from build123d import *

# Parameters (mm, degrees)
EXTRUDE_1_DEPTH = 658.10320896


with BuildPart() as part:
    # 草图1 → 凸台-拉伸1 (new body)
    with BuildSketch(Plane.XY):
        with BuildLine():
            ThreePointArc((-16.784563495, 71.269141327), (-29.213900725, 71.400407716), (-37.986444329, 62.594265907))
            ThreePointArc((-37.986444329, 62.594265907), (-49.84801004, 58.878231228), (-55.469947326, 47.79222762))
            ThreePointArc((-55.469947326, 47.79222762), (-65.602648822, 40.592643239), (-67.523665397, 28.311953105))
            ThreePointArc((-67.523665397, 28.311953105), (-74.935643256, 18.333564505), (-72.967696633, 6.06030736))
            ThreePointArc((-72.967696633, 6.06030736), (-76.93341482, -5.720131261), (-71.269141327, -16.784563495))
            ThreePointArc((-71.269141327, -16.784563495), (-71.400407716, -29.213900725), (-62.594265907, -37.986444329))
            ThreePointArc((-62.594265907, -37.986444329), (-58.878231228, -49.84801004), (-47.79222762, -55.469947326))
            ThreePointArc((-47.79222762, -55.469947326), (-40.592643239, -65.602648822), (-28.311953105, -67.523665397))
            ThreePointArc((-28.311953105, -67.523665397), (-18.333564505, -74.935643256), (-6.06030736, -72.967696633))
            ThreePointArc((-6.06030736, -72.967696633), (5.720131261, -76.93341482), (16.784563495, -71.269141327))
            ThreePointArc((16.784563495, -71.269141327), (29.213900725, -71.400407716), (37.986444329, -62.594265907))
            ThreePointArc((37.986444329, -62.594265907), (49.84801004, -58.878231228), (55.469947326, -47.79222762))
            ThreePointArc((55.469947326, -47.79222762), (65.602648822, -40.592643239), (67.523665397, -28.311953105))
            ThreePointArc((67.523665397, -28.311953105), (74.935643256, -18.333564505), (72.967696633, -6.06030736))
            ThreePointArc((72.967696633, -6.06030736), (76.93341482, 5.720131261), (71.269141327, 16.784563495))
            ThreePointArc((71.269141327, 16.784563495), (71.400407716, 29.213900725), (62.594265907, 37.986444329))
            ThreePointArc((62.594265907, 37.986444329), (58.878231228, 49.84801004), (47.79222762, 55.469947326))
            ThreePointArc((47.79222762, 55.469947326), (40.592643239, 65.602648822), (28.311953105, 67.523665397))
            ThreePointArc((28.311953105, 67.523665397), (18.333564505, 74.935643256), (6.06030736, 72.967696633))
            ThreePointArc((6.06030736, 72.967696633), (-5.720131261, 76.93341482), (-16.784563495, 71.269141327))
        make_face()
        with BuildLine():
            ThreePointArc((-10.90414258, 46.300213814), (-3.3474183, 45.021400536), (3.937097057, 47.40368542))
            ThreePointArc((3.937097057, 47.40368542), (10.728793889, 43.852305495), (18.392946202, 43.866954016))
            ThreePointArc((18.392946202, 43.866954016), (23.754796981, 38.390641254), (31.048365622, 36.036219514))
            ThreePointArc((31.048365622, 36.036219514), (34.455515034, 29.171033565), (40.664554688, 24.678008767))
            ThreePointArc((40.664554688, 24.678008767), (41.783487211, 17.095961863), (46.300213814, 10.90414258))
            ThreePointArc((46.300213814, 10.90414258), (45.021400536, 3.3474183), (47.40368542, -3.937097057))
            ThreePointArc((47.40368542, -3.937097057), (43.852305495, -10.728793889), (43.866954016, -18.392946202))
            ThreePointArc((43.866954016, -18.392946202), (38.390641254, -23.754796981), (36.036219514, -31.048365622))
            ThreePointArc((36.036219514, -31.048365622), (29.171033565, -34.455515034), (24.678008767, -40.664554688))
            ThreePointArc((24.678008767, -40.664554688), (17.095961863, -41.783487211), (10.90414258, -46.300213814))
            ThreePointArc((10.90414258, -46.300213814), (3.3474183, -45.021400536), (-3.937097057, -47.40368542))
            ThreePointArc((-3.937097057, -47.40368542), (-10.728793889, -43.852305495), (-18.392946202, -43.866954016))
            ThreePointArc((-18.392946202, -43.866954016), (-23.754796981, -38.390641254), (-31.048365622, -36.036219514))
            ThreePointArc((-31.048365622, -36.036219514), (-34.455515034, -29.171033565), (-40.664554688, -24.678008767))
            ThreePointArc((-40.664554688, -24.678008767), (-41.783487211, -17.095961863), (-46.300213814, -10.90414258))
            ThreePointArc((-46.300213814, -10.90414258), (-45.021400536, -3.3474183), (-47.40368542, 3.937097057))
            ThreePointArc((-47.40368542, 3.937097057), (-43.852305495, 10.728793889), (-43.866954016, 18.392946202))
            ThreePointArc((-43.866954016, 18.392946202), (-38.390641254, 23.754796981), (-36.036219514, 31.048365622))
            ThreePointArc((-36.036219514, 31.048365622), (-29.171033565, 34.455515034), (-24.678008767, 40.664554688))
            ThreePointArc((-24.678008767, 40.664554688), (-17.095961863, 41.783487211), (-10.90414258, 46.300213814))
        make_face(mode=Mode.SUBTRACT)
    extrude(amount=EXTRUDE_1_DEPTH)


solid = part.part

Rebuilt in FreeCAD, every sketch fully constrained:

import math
import FreeCAD as App
import Part
import Sketcher
from FreeCAD import Vector
Q = App.Units.Quantity

doc = App.newDocument("Part")
body = doc.addObject("PartDesign::Body", "Body")

# Sketch on XY plane
sketch1 = doc.addObject("Sketcher::SketchObject", "Sketch")
body.addObject(sketch1)
sketch1.AttachmentSupport = (doc.XY_Plane, [""])
sketch1.MapMode = "FlatFace"
sketch1.addGeometry(Part.ArcOfCircle(Part.Circle(Vector(-23.154931, 56.591947, 0), Vector(0, 0, 1), 16.00005), math.radians(66.537627), math.radians(157.966804)), False)
sketch1.addGeometry(Part.ArcOfCircle(Part.Circle(Vector(-39.509522, 46.666873, 0), Vector(0, 0, 1), 16.00005), math.radians(84.537627), math.radians(175.966804)), False)
sketch1.addGeometry(Part.ArcOfCircle(Part.Circle(Vector(-51.996645, 32.17372, 0), Vector(0, 0, 1), 16.00005), math.radians(102.537627), math.radians(193.966804)), False)
sketch1.addGeometry(Part.ArcOfCircle(Part.Circle(Vector(-59.393974, 14.531179, 0), Vector(0, 0, 1), 16.00005), math.radians(120.537627), math.radians(211.966804)), False)
sketch1.addGeometry(Part.ArcOfCircle(Part.Circle(Vector(-60.977408, -4.533775, 0), Vector(0, 0, 1), 16.00005), math.radians(138.537627), math.radians(229.966804)), False)
sketch1.addGeometry(Part.ArcOfCircle(Part.Circle(Vector(-56.591947, -23.154931, 0), Vector(0, 0, 1), 16.00005), math.radians(156.537627), math.radians(247.966804)), False)
sketch1.addGeometry(Part.ArcOfCircle(Part.Circle(Vector(-46.666873, -39.509522, 0), Vector(0, 0, 1), 16.00005), math.radians(174.537627), math.radians(265.966804)), False)
sketch1.addGeometry(Part.ArcOfCircle(Part.Circle(Vector(-32.17372, -51.996645, 0), Vector(0, 0, 1), 16.00005), math.radians(-167.462373), math.radians(-76.033196)), False)
sketch1.addGeometry(Part.ArcOfCircle(Part.Circle(Vector(-14.531179, -59.393974, 0), Vector(0, 0, 1), 16.00005), math.radians(-149.462373), math.radians(-58.033196)), False)
sketch1.addGeometry(Part.ArcOfCircle(Part.Circle(Vector(4.533775, -60.977408, 0), Vector(0, 0, 1), 16.00005), math.radians(-131.462373), math.radians(-40.033196)), False)
sketch1.addGeometry(Part.ArcOfCircle(Part.Circle(Vector(23.154931, -56.591947, 0), Vector(0, 0, 1), 16.00005), math.radians(-113.462373), math.radians(-22.033196)), False)
sketch1.addGeometry(Part.ArcOfCircle(Part.Circle(Vector(39.509522, -46.666873, 0), Vector(0, 0, 1), 16.00005), math.radians(-95.462373), math.radians(-4.033196)), False)
sketch1.addGeometry(Part.ArcOfCircle(Part.Circle(Vector(51.996645, -32.17372, 0), Vector(0, 0, 1), 16.00005), math.radians(-77.462373), math.radians(13.966804)), False)
sketch1.addGeometry(Part.ArcOfCircle(Part.Circle(Vector(59.393974, -14.531179, 0), Vector(0, 0, 1), 16.00005), math.radians(-59.462373), math.radians(31.966804)), False)
sketch1.addGeometry(Part.ArcOfCircle(Part.Circle(Vector(60.977408, 4.533775, 0), Vector(0, 0, 1), 16.00005), math.radians(-41.462373), math.radians(49.966804)), False)
sketch1.addGeometry(Part.ArcOfCircle(Part.Circle(Vector(56.591947, 23.154931, 0), Vector(0, 0, 1), 16.00005), math.radians(-23.462373), math.radians(67.966804)), False)
sketch1.addGeometry(Part.ArcOfCircle(Part.Circle(Vector(46.666873, 39.509522, 0), Vector(0, 0, 1), 16.00005), math.radians(-5.462373), math.radians(85.966804)), False)
sketch1.addGeometry(Part.ArcOfCircle(Part.Circle(Vector(32.17372, 51.996645, 0), Vector(0, 0, 1), 16.00005), math.radians(12.537627), math.radians(103.966804)), False)
sketch1.addGeometry(Part.ArcOfCircle(Part.Circle(Vector(14.531179, 59.393974, 0), Vector(0, 0, 1), 16.00005), math.radians(30.537627), math.radians(121.966804)), False)
sketch1.addGeometry(Part.ArcOfCircle(Part.Circle(Vector(-4.533775, 60.977408, 0), Vector(0, 0, 1), 16.00005), math.radians(48.537627), math.radians(139.966804)), False)
sketch1.addGeometry(Part.ArcOfCircle(Part.Circle(Vector(-23.154931, 56.591947, 0), Vector(0, 0, 1), 16.00005), math.radians(-95.462373), math.radians(-40.033196)), False)
sketch1.addGeometry(Part.ArcOfCircle(Part.Circle(Vector(-4.533775, 60.977408, 0), Vector(0, 0, 1), 16.00005), math.radians(-113.462373), math.radians(-58.033196)), False)
sketch1.addGeometry(Part.ArcOfCircle(Part.Circle(Vector(14.531179, 59.393974, 0), Vector(0, 0, 1), 16.00005), math.radians(-131.462373), math.radians(-76.033196)), False)
sketch1.addGeometry(Part.ArcOfCircle(Part.Circle(Vector(32.17372, 51.996645, 0), Vector(0, 0, 1), 16.00005), math.radians(-149.462373), math.radians(-94.033196)), False)
sketch1.addGeometry(Part.ArcOfCircle(Part.Circle(Vector(46.666873, 39.509522, 0), Vector(0, 0, 1), 16.00005), math.radians(-167.462373), math.radians(-112.033196)), False)
sketch1.addGeometry(Part.ArcOfCircle(Part.Circle(Vector(56.591947, 23.154931, 0), Vector(0, 0, 1), 16.00005), math.radians(174.537627), math.radians(229.966804)), False)
sketch1.addGeometry(Part.ArcOfCircle(Part.Circle(Vector(60.977408, 4.533775, 0), Vector(0, 0, 1), 16.00005), math.radians(156.537627), math.radians(211.966804)), False)
sketch1.addGeometry(Part.ArcOfCircle(Part.Circle(Vector(59.393974, -14.531179, 0), Vector(0, 0, 1), 16.00005), math.radians(138.537627), math.radians(193.966804)), False)
sketch1.addGeometry(Part.ArcOfCircle(Part.Circle(Vector(51.996645, -32.17372, 0), Vector(0, 0, 1), 16.00005), math.radians(120.537627), math.radians(175.966804)), False)
sketch1.addGeometry(Part.ArcOfCircle(Part.Circle(Vector(39.509522, -46.666873, 0), Vector(0, 0, 1), 16.00005), math.radians(102.537627), math.radians(157.966804)), False)
sketch1.addGeometry(Part.ArcOfCircle(Part.Circle(Vector(23.154931, -56.591947, 0), Vector(0, 0, 1), 16.00005), math.radians(84.537627), math.radians(139.966804)), False)
sketch1.addGeometry(Part.ArcOfCircle(Part.Circle(Vector(4.533775, -60.977408, 0), Vector(0, 0, 1), 16.00005), math.radians(66.537627), math.radians(121.966804)), False)
sketch1.addGeometry(Part.ArcOfCircle(Part.Circle(Vector(-14.531179, -59.393974, 0), Vector(0, 0, 1), 16.00005), math.radians(48.537627), math.radians(103.966804)), False)
sketch1.addGeometry(Part.ArcOfCircle(Part.Circle(Vector(-32.17372, -51.996645, 0), Vector(0, 0, 1), 16.00005), math.radians(30.537627), math.radians(85.966804)), False)
sketch1.addGeometry(Part.ArcOfCircle(Part.Circle(Vector(-46.666873, -39.509522, 0), Vector(0, 0, 1), 16.00005), math.radians(12.537627), math.radians(67.966804)), False)
sketch1.addGeometry(Part.ArcOfCircle(Part.Circle(Vector(-56.591947, -23.154931, 0), Vector(0, 0, 1), 16.00005), math.radians(-5.462373), math.radians(49.966804)), False)
sketch1.addGeometry(Part.ArcOfCircle(Part.Circle(Vector(-60.977408, -4.533775, 0), Vector(0, 0, 1), 16.00005), math.radians(-23.462373), math.radians(31.966804)), False)
sketch1.addGeometry(Part.ArcOfCircle(Part.Circle(Vector(-59.393974, 14.531179, 0), Vector(0, 0, 1), 16.00005), math.radians(-41.462373), math.radians(13.966804)), False)
sketch1.addGeometry(Part.ArcOfCircle(Part.Circle(Vector(-51.996645, 32.17372, 0), Vector(0, 0, 1), 16.00005), math.radians(-59.462373), math.radians(-4.033196)), False)
sketch1.addGeometry(Part.ArcOfCircle(Part.Circle(Vector(-39.509522, 46.666873, 0), Vector(0, 0, 1), 16.00005), math.radians(-77.462373), math.radians(-22.033196)), False)
sketch1.addConstraint(Sketcher.Constraint("Coincident", 0, 2, 1, 1))
sketch1.addConstraint(Sketcher.Constraint("Coincident", 1, 2, 2, 1))
sketch1.addConstraint(Sketcher.Constraint("Coincident", 2, 2, 3, 1))
sketch1.addConstraint(Sketcher.Constraint("Coincident", 3, 2, 4, 1))
sketch1.addConstraint(Sketcher.Constraint("Coincident", 4, 2, 5, 1))
sketch1.addConstraint(Sketcher.Constraint("Coincident", 5, 2, 6, 1))
sketch1.addConstraint(Sketcher.Constraint("Coincident", 6, 2, 7, 1))
sketch1.addConstraint(Sketcher.Constraint("Coincident", 7, 2, 8, 1))
sketch1.addConstraint(Sketcher.Constraint("Coincident", 8, 2, 9, 1))
sketch1.addConstraint(Sketcher.Constraint("Coincident", 9, 2, 10, 1))
sketch1.addConstraint(Sketcher.Constraint("Coincident", 10, 2, 11, 1))
sketch1.addConstraint(Sketcher.Constraint("Coincident", 11, 2, 12, 1))
sketch1.addConstraint(Sketcher.Constraint("Coincident", 12, 2, 13, 1))
sketch1.addConstraint(Sketcher.Constraint("Coincident", 13, 2, 14, 1))
sketch1.addConstraint(Sketcher.Constraint("Coincident", 14, 2, 15, 1))
sketch1.addConstraint(Sketcher.Constraint("Coincident", 15, 2, 16, 1))
sketch1.addConstraint(Sketcher.Constraint("Coincident", 16, 2, 17, 1))
sketch1.addConstraint(Sketcher.Constraint("Coincident", 17, 2, 18, 1))
sketch1.addConstraint(Sketcher.Constraint("Coincident", 18, 2, 19, 1))
sketch1.addConstraint(Sketcher.Constraint("Coincident", 19, 2, 0, 1))
sketch1.addConstraint(Sketcher.Constraint("Coincident", 20, 2, 21, 1))
sketch1.addConstraint(Sketcher.Constraint("Coincident", 21, 2, 22, 1))
sketch1.addConstraint(Sketcher.Constraint("Coincident", 22, 2, 23, 1))
sketch1.addConstraint(Sketcher.Constraint("Coincident", 23, 2, 24, 1))
sketch1.addConstraint(Sketcher.Constraint("Coincident", 24, 2, 25, 1))
sketch1.addConstraint(Sketcher.Constraint("Coincident", 25, 2, 26, 1))
sketch1.addConstraint(Sketcher.Constraint("Coincident", 26, 2, 27, 1))
sketch1.addConstraint(Sketcher.Constraint("Coincident", 27, 2, 28, 1))
sketch1.addConstraint(Sketcher.Constraint("Coincident", 28, 2, 29, 1))
sketch1.addConstraint(Sketcher.Constraint("Coincident", 29, 2, 30, 1))
sketch1.addConstraint(Sketcher.Constraint("Coincident", 30, 2, 31, 1))
sketch1.addConstraint(Sketcher.Constraint("Coincident", 31, 2, 32, 1))
sketch1.addConstraint(Sketcher.Constraint("Coincident", 32, 2, 33, 1))
sketch1.addConstraint(Sketcher.Constraint("Coincident", 33, 2, 34, 1))
sketch1.addConstraint(Sketcher.Constraint("Coincident", 34, 2, 35, 1))
sketch1.addConstraint(Sketcher.Constraint("Coincident", 35, 2, 36, 1))
sketch1.addConstraint(Sketcher.Constraint("Coincident", 36, 2, 37, 1))
sketch1.addConstraint(Sketcher.Constraint("Coincident", 37, 2, 38, 1))
sketch1.addConstraint(Sketcher.Constraint("Coincident", 38, 2, 39, 1))
sketch1.addConstraint(Sketcher.Constraint("Coincident", 39, 2, 20, 1))
sketch1.addConstraint(Sketcher.Constraint("Coincident", 20, 3, 0, 3))
sketch1.addConstraint(Sketcher.Constraint("Coincident", 21, 3, 19, 3))
sketch1.addConstraint(Sketcher.Constraint("Coincident", 22, 3, 18, 3))
sketch1.addConstraint(Sketcher.Constraint("Coincident", 23, 3, 17, 3))
sketch1.addConstraint(Sketcher.Constraint("Coincident", 24, 3, 16, 3))
sketch1.addConstraint(Sketcher.Constraint("Coincident", 25, 3, 15, 3))
sketch1.addConstraint(Sketcher.Constraint("Coincident", 26, 3, 14, 3))
sketch1.addConstraint(Sketcher.Constraint("Coincident", 27, 3, 13, 3))
sketch1.addConstraint(Sketcher.Constraint("Coincident", 28, 3, 12, 3))
sketch1.addConstraint(Sketcher.Constraint("Coincident", 29, 3, 11, 3))
sketch1.addConstraint(Sketcher.Constraint("Coincident", 30, 3, 10, 3))
sketch1.addConstraint(Sketcher.Constraint("Coincident", 31, 3, 9, 3))
sketch1.addConstraint(Sketcher.Constraint("Coincident", 32, 3, 8, 3))
sketch1.addConstraint(Sketcher.Constraint("Coincident", 33, 3, 7, 3))
sketch1.addConstraint(Sketcher.Constraint("Coincident", 34, 3, 6, 3))
sketch1.addConstraint(Sketcher.Constraint("Coincident", 35, 3, 5, 3))
sketch1.addConstraint(Sketcher.Constraint("Coincident", 36, 3, 4, 3))
sketch1.addConstraint(Sketcher.Constraint("Coincident", 37, 3, 3, 3))
sketch1.addConstraint(Sketcher.Constraint("Coincident", 38, 3, 2, 3))
sketch1.addConstraint(Sketcher.Constraint("Coincident", 39, 3, 1, 3))
sketch1.addConstraint(Sketcher.Constraint("Equal", 0, 1))
sketch1.addConstraint(Sketcher.Constraint("Equal", 1, 2))
sketch1.addConstraint(Sketcher.Constraint("Equal", 2, 3))
sketch1.addConstraint(Sketcher.Constraint("Equal", 3, 4))
sketch1.addConstraint(Sketcher.Constraint("Equal", 4, 5))
sketch1.addConstraint(Sketcher.Constraint("Equal", 5, 6))
sketch1.addConstraint(Sketcher.Constraint("Equal", 6, 7))
sketch1.addConstraint(Sketcher.Constraint("Equal", 7, 8))
sketch1.addConstraint(Sketcher.Constraint("Equal", 8, 9))
sketch1.addConstraint(Sketcher.Constraint("Equal", 9, 10))
sketch1.addConstraint(Sketcher.Constraint("Equal", 10, 11))
sketch1.addConstraint(Sketcher.Constraint("Equal", 11, 12))
sketch1.addConstraint(Sketcher.Constraint("Equal", 12, 13))
sketch1.addConstraint(Sketcher.Constraint("Equal", 13, 14))
sketch1.addConstraint(Sketcher.Constraint("Equal", 14, 15))
sketch1.addConstraint(Sketcher.Constraint("Equal", 15, 16))
sketch1.addConstraint(Sketcher.Constraint("Equal", 16, 17))
sketch1.addConstraint(Sketcher.Constraint("Equal", 17, 18))
sketch1.addConstraint(Sketcher.Constraint("Equal", 18, 19))
sketch1.addConstraint(Sketcher.Constraint("Equal", 19, 20))
sketch1.addConstraint(Sketcher.Constraint("Equal", 20, 21))
sketch1.addConstraint(Sketcher.Constraint("Equal", 21, 22))
sketch1.addConstraint(Sketcher.Constraint("Equal", 22, 23))
sketch1.addConstraint(Sketcher.Constraint("Equal", 23, 24))
sketch1.addConstraint(Sketcher.Constraint("Equal", 24, 25))
sketch1.addConstraint(Sketcher.Constraint("Equal", 25, 26))
sketch1.addConstraint(Sketcher.Constraint("Equal", 26, 27))
sketch1.addConstraint(Sketcher.Constraint("Equal", 27, 28))
sketch1.addConstraint(Sketcher.Constraint("Equal", 28, 29))
sketch1.addConstraint(Sketcher.Constraint("Equal", 29, 30))
sketch1.addConstraint(Sketcher.Constraint("Equal", 30, 31))
sketch1.addConstraint(Sketcher.Constraint("Equal", 31, 32))
sketch1.addConstraint(Sketcher.Constraint("Equal", 32, 33))
sketch1.addConstraint(Sketcher.Constraint("Equal", 33, 34))
sketch1.addConstraint(Sketcher.Constraint("Equal", 34, 35))
sketch1.addConstraint(Sketcher.Constraint("Equal", 35, 36))
sketch1.addConstraint(Sketcher.Constraint("Equal", 36, 37))
sketch1.addConstraint(Sketcher.Constraint("Equal", 37, 38))
sketch1.addConstraint(Sketcher.Constraint("Equal", 38, 39))
sketch1.addConstraint(Sketcher.Constraint("Symmetric", 0, 3, 10, 3, -1, 1))
sketch1.addConstraint(Sketcher.Constraint("Symmetric", 1, 3, 11, 3, -1, 1))
sketch1.addConstraint(Sketcher.Constraint("Symmetric", 2, 3, 12, 3, -1, 1))
sketch1.addConstraint(Sketcher.Constraint("Symmetric", 3, 3, 13, 3, -1, 1))
sketch1.addConstraint(Sketcher.Constraint("Symmetric", 4, 3, 14, 3, -1, 1))
sketch1.addConstraint(Sketcher.Constraint("Symmetric", 5, 3, 15, 3, -1, 1))
sketch1.addConstraint(Sketcher.Constraint("Symmetric", 6, 3, 16, 3, -1, 1))
sketch1.addConstraint(Sketcher.Constraint("Symmetric", 7, 3, 17, 3, -1, 1))
sketch1.addConstraint(Sketcher.Constraint("Symmetric", 8, 3, 18, 3, -1, 1))
sketch1.addConstraint(Sketcher.Constraint("Symmetric", 9, 3, 19, 3, -1, 1))
sketch1.addConstraint(Sketcher.Constraint("Radius", 0, Q("16.00005 mm")))
sketch1.addConstraint(Sketcher.Constraint("DistanceX", 0, 3, -1, 1, Q("23.154931 mm")))
sketch1.addConstraint(Sketcher.Constraint("DistanceX", 1, 3, -1, 1, Q("39.509522 mm")))
sketch1.addConstraint(Sketcher.Constraint("DistanceY", -1, 1, 2, 3, Q("32.17372 mm")))
sketch1.addConstraint(Sketcher.Constraint("DistanceY", -1, 1, 3, 3, Q("14.531179 mm")))
sketch1.addConstraint(Sketcher.Constraint("DistanceY", 5, 3, -1, 1, Q("23.154931 mm")))
sketch1.addConstraint(Sketcher.Constraint("DistanceY", 6, 3, -1, 1, Q("39.509522 mm")))
sketch1.addConstraint(Sketcher.Constraint("DistanceX", 7, 3, -1, 1, Q("32.17372 mm")))
sketch1.addConstraint(Sketcher.Constraint("DistanceX", 8, 3, -1, 1, Q("14.531179 mm")))
sketch1.addConstraint(Sketcher.Constraint("DistanceX", 4, 2, -1, 1, Q("71.269141 mm")))
sketch1.addConstraint(Sketcher.Constraint("DistanceY", 9, 2, -1, 1, Q("71.269141 mm")))
sketch1.addConstraint(Sketcher.Constraint("DistanceY", -1, 1, 23, 2, Q("36.03622 mm")))
sketch1.addConstraint(Sketcher.Constraint("DistanceY", -1, 1, 24, 2, Q("24.678009 mm")))
sketch1.addConstraint(Sketcher.Constraint("DistanceX", -1, 1, 28, 2, Q("36.03622 mm")))
sketch1.addConstraint(Sketcher.Constraint("DistanceX", -1, 1, 29, 2, Q("24.678009 mm")))
sketch1.addConstraint(Sketcher.Constraint("DistanceY", -1, 1, 0, 3, Q("56.591947 mm")))
sketch1.addConstraint(Sketcher.Constraint("DistanceX", 3, 3, -1, 1, Q("59.393974 mm")))
sketch1.addConstraint(Sketcher.Constraint("DistanceX", 4, 3, -1, 1, Q("60.977408 mm")))
sketch1.addConstraint(Sketcher.Constraint("DistanceY", 4, 3, -1, 1, Q("4.533775 mm")))
sketch1.addConstraint(Sketcher.Constraint("DistanceY", 8, 3, -1, 1, Q("59.393974 mm")))
sketch1.addConstraint(Sketcher.Constraint("DistanceX", -1, 1, 9, 3, Q("4.533775 mm")))
pad1 = doc.addObject("PartDesign::Pad", "Pad")
body.addObject(pad1)
pad1.Profile = sketch1
pad1.Length = 658.103209

doc.recompute()
